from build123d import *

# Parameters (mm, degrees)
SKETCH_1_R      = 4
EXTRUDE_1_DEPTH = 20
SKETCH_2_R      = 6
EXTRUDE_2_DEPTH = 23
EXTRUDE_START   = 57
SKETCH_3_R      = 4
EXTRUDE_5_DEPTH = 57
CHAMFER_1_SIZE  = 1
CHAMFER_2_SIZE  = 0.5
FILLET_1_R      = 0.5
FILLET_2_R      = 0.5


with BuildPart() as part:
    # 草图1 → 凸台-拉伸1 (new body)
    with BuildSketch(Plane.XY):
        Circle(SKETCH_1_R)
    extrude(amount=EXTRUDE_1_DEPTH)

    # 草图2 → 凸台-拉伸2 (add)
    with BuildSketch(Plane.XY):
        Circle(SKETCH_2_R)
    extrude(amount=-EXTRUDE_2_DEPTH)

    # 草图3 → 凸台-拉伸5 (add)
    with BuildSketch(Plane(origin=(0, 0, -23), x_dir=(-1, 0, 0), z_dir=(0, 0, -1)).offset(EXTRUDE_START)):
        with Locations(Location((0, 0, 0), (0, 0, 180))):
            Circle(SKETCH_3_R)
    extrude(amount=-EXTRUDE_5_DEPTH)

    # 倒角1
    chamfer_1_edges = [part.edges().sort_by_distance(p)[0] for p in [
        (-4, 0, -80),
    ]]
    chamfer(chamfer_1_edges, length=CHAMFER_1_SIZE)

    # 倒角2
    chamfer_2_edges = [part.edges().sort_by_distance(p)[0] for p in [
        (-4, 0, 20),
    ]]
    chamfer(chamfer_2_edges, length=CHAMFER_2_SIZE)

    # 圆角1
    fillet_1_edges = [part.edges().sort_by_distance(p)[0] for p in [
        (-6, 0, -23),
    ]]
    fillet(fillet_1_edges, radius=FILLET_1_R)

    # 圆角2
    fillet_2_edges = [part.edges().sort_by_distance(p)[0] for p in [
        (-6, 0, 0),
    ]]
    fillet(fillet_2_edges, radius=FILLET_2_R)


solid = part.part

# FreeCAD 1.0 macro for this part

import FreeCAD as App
import Part
import Sketcher

V = App.Vector
Q = App.Units.Quantity


def edges_at(feature, points):
    """Names of the edges that pass closest to the given points."""
    edges = feature.Shape.Edges
    near = lambda p: min(range(len(edges)), key=lambda i: edges[i].distToShape(Part.Vertex(*p))[0])
    return sorted({f"Edge{near(p) + 1}" for p in points})

doc = App.newDocument("Part")
body = doc.addObject("PartDesign::Body", "Body")

# Sketch on XY plane
sketch1 = body.newObject("Sketcher::SketchObject", "Sketch")
sketch1.AttachmentSupport = (doc.getObject("XY_Plane"), [""])
sketch1.MapMode = "FlatFace"
sketch1.addGeometry(Part.Circle(V(0, 0, 0), V(0, 0, 1), 4), False)
sketch1.addConstraint([
    Sketcher.Constraint("Coincident", 0, 3, -1, 1),
    Sketcher.Constraint("Diameter", 0, Q("8 mm")),
])
pad1 = body.newObject("PartDesign::Pad", "Pad")
pad1.Profile = sketch1
pad1.Length = 20

# Sketch on XY plane
sketch2 = body.newObject("Sketcher::SketchObject", "Sketch001")
sketch2.AttachmentSupport = (doc.getObject("XY_Plane"), [""])
sketch2.MapMode = "FlatFace"
sketch2.addGeometry(Part.Circle(V(0, 0, 0), V(0, 0, 1), 6), False)
sketch2.addConstraint([
    Sketcher.Constraint("Coincident", 0, 3, -1, 1),
    Sketcher.Constraint("Diameter", 0, Q("12 mm")),
])
pad2 = body.newObject("PartDesign::Pad", "Pad001")
pad2.Profile = sketch2
pad2.Length = 23
pad2.Reversed = True

# Sketch on XY plane
sketch3 = body.newObject("Sketcher::SketchObject", "Sketch002")
sketch3.AttachmentSupport = (doc.getObject("XY_Plane"), [""])
sketch3.MapMode = "FlatFace"
sketch3.AttachmentOffset = App.Placement(V(0, 0, -80), App.Rotation())
sketch3.addGeometry(Part.Circle(V(0, 0, 0), V(0, 0, 1), 4), False)
sketch3.addConstraint([
    Sketcher.Constraint("Coincident", 0, 3, -1, 1),
    Sketcher.Constraint("Diameter", 0, Q("8 mm")),
])
pad3 = body.newObject("PartDesign::Pad", "Pad002")
pad3.Profile = sketch3
pad3.Length = 57
doc.recompute()

chamfer = body.newObject("PartDesign::Chamfer", "Chamfer")
chamfer.Base = (pad3, edges_at(pad3, [(-4, 0, -80)]))
chamfer.Size = 1
doc.recompute()

chamfer2 = body.newObject("PartDesign::Chamfer", "Chamfer001")
chamfer2.Base = (chamfer, edges_at(chamfer, [(-4, 0, 20)]))
chamfer2.Size = 0.5
doc.recompute()

fillet = body.newObject("PartDesign::Fillet", "Fillet")
fillet.Base = (chamfer2, edges_at(chamfer2, [(-6, 0, -23)]))
fillet.Radius = 0.5
doc.recompute()

fillet2 = body.newObject("PartDesign::Fillet", "Fillet001")
fillet2.Base = (fillet, edges_at(fillet, [(-6, 0, 0)]))
fillet2.Radius = 0.5

doc.recompute()
